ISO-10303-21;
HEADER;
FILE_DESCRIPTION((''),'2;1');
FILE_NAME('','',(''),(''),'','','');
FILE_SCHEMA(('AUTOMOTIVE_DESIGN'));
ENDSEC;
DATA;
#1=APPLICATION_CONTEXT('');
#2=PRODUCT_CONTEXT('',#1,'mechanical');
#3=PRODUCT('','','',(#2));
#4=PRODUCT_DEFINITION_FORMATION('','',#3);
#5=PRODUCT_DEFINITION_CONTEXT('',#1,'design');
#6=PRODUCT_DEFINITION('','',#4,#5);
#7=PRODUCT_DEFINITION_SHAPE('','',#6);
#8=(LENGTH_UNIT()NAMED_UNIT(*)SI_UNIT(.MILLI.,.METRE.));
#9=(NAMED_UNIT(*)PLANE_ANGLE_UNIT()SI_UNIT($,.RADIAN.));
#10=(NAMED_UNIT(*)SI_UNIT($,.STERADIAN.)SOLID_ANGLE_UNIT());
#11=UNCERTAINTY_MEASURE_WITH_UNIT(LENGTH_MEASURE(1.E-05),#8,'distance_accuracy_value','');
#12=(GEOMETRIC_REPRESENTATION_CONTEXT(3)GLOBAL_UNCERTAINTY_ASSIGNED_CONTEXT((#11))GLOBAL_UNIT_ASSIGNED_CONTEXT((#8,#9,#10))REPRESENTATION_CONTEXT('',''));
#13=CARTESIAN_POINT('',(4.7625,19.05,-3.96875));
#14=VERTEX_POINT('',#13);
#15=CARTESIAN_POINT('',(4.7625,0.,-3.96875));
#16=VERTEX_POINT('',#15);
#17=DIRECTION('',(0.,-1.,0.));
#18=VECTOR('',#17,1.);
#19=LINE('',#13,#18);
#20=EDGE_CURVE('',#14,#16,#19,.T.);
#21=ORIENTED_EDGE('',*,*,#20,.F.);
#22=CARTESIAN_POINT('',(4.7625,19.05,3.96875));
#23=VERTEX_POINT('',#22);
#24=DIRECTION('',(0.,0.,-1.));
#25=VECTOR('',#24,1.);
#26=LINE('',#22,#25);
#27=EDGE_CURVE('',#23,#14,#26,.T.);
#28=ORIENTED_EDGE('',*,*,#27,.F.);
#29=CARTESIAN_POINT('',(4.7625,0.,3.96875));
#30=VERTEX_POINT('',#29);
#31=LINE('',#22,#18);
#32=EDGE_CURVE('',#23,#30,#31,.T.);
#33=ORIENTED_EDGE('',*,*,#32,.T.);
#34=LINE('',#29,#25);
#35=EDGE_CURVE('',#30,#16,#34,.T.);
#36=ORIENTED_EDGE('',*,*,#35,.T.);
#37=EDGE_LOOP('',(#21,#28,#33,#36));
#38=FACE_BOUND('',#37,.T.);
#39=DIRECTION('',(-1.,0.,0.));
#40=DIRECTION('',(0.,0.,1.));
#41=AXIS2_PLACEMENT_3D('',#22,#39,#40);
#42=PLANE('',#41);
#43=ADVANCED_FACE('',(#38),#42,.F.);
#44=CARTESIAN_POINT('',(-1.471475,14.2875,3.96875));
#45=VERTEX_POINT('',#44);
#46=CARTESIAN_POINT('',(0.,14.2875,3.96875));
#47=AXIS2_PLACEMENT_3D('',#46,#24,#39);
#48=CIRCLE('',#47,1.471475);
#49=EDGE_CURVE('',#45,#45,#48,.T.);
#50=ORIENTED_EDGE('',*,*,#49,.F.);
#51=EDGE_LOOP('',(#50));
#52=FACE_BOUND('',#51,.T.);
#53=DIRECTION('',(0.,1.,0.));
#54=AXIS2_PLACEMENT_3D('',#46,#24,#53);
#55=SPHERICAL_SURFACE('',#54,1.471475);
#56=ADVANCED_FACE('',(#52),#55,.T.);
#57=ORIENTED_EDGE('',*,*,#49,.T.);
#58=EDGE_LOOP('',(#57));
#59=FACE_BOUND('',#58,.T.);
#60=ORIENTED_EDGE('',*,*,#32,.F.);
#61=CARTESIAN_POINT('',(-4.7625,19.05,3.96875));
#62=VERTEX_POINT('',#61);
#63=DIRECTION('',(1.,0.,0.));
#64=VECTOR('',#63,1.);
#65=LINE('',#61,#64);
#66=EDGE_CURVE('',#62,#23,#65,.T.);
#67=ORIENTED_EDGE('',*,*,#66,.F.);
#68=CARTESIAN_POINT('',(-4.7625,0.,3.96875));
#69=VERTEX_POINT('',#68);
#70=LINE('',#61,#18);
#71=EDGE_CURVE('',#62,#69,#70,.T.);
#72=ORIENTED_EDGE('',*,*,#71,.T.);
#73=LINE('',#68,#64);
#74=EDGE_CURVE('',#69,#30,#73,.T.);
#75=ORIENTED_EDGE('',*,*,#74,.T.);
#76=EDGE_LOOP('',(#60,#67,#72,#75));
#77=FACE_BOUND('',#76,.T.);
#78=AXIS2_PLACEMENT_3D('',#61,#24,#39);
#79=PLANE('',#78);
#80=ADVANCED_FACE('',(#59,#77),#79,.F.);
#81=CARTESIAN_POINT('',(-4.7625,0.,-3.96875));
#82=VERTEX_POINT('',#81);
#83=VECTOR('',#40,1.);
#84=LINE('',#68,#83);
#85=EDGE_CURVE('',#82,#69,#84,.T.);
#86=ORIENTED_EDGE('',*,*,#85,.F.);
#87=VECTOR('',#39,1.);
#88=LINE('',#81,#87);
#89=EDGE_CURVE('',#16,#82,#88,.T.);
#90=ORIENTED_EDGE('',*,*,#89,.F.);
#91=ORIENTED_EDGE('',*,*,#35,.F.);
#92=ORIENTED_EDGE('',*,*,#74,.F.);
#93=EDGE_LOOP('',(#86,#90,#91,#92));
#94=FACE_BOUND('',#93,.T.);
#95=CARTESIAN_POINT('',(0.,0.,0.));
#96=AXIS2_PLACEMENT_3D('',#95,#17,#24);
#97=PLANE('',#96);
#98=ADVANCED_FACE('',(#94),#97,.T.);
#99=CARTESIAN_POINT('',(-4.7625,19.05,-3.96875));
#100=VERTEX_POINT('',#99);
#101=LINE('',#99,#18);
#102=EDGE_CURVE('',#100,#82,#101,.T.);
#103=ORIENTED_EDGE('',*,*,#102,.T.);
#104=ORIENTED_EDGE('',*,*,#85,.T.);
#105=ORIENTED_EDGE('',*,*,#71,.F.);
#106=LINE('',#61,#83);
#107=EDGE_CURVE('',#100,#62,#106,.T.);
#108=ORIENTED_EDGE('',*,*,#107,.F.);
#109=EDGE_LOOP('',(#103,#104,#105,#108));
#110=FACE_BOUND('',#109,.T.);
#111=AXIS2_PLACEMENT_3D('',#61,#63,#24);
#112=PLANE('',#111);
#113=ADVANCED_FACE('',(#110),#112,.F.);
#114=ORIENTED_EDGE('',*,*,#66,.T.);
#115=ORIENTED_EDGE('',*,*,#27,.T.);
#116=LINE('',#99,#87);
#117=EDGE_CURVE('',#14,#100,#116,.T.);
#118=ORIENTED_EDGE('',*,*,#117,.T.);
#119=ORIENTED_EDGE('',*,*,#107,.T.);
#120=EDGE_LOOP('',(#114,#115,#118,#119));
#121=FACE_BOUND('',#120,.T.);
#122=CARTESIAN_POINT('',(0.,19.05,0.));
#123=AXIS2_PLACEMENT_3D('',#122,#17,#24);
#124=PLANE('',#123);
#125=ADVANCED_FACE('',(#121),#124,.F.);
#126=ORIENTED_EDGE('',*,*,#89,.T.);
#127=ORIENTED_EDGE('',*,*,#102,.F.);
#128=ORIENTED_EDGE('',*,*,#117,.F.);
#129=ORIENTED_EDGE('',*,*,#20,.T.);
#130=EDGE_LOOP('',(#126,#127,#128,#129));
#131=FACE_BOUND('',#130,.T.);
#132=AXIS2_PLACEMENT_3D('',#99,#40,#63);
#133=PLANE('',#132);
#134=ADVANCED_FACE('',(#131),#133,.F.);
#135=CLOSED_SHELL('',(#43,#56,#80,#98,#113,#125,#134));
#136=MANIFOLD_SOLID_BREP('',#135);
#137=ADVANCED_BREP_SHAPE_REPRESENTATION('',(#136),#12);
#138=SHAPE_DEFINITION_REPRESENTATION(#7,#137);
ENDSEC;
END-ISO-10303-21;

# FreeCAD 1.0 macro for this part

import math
import FreeCAD as App
import Part
import Sketcher
Q = App.Units.Quantity


def add_polygon(sketch, points):
    """Adds a closed chain of lines whose ends are joined by coincident constraints."""
    first, n = sketch.GeometryCount, len(points)
    for a, b in zip(points, points[1:] + points[:1]):
        sketch.addGeometry(Part.LineSegment(App.Vector(*a, 0), App.Vector(*b, 0)), False)
    for i in range(n):
        sketch.addConstraint(Sketcher.Constraint("Coincident", first + i, 2, first + (i + 1) % n, 1))

doc = App.newDocument("Part")
params = doc.addObject("Spreadsheet::Sheet", "Params")
for row, (alias, value) in enumerate([
    ("sketch1_width", "0.375 in"),
    ("sketch1_height", "0.3125 in"),
    ("pad1_length", "0.75 in"),
    ("revolution_angle", "360 deg"),
], start=1):
    params.set(f"A{row}", alias)
    params.set(f"B{row}", "=" + value)
    params.setAlias(f"B{row}", alias)

body = doc.addObject("PartDesign::Body", "Body")

# Sketch on XZ plane
sketch1 = doc.addObject("Sketcher::SketchObject", "Sketch")
body.addObject(sketch1)
sketch1.AttachmentSupport = (doc.XZ_Plane, [""])
sketch1.MapMode = "FlatFace"
add_polygon(sketch1, [(-5, -4), (-5, 4), (5, 4), (5, -4)])  # lines 0-3
sketch1.addConstraint([
    Sketcher.Constraint("Vertical", 0),
    Sketcher.Constraint("Horizontal", 1),
    Sketcher.Constraint("Vertical", 2),
    Sketcher.Constraint("Horizontal", 3),
    Sketcher.Constraint("Symmetric", 0, 2, 2, 2, -1, 1),
    Sketcher.Constraint("DistanceX", 1, 1, 1, 2, Q("0.375 in")),
    Sketcher.Constraint("DistanceY", 0, 1, 0, 2, Q("0.3125 in")),
])
sketch1.setExpression("Constraints[9]", "Params.sketch1_width")
sketch1.setExpression("Constraints[10]", "Params.sketch1_height")
pad1 = doc.addObject("PartDesign::Pad", "Pad")
body.addObject(pad1)
pad1.Profile = sketch1
pad1.setExpression("Length", "Params.pad1_length")
pad1.Reversed = True

# Sketch on YZ plane
sketch2 = doc.addObject("Sketcher::SketchObject", "Sketch001")
body.addObject(sketch2)
sketch2.AttachmentSupport = (doc.YZ_Plane, [""])
sketch2.MapMode = "FlatFace"
sketch2.addGeometry([
    Part.LineSegment(App.Vector(14.3, 4, 0), App.Vector(15.8, 4, 0)),
    Part.ArcOfCircle(Part.Circle(App.Vector(14.3, 4, 0), App.Vector(0, 0, 1), 1.5), math.radians(0), math.radians(90)),
    Part.LineSegment(App.Vector(14.3, 5.4, 0), App.Vector(14.3, 4, 0)),
], False)
sketch2.addGeometry(Part.LineSegment(App.Vector(14.3, 4, 0), App.Vector(14.3, 5.4, 0)), True)  # axis
sketch2.addConstraint([
    Sketcher.Constraint("Coincident", 0, 2, 1, 1),
    Sketcher.Constraint("Coincident", 1, 2, 2, 1),
    Sketcher.Constraint("Coincident", 2, 2, 0, 1),
    Sketcher.Constraint("Horizontal", 0),
    Sketcher.Constraint("Vertical", 2),
    Sketcher.Constraint("Vertical", 3),
    Sketcher.Constraint("Coincident", 2, 2, 1, 3),
    Sketcher.Constraint("Coincident", 3, 1, 1, 3),
    Sketcher.Constraint("Equal", 2, 3),
    Sketcher.Constraint("DistanceX", -1, 1, 1, 3, Q("0.5625 in")),
    Sketcher.Constraint("DistanceY", -1, 1, 1, 3, Q("0.15625 in")),
    Sketcher.Constraint("Radius", 1, Q("1.471475 mm")),
])
revolution = doc.addObject("PartDesign::Revolution", "Revolution")
body.addObject(revolution)
revolution.Profile = sketch2
revolution.ReferenceAxis = (sketch2, ["Axis0"])
revolution.setExpression("Angle", "Params.revolution_angle")

doc.recompute()
